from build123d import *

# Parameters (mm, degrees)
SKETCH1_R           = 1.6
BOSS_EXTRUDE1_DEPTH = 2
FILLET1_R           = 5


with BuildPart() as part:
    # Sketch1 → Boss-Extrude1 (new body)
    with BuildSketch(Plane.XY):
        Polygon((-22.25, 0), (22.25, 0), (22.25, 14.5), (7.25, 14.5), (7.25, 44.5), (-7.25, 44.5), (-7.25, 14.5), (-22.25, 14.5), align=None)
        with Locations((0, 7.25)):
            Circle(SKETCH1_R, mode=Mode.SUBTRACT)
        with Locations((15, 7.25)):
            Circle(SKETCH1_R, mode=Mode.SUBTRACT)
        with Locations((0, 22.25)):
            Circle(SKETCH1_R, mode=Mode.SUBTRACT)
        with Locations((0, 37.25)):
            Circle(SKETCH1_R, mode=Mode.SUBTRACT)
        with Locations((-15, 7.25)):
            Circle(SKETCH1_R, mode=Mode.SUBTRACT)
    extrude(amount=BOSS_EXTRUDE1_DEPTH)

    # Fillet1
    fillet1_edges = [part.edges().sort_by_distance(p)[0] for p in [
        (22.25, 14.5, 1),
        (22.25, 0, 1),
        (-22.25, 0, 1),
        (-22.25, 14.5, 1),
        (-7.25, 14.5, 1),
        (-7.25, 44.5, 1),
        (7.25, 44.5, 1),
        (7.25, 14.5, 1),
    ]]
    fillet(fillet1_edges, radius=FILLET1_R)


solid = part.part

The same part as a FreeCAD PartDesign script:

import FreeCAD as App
import Part
import Sketcher
from FreeCAD import Vector


def edges_at(feature, points):
    """Names of the edges that pass closest to the given points."""
    edges = feature.Shape.Edges
    near = lambda p: min(range(len(edges)), key=lambda i: edges[i].distToShape(Part.Vertex(*p))[0])
    return sorted({f"Edge{near(p) + 1}" for p in points})


def add_polygon(sketch, points):
    """Adds a closed chain of lines whose ends are joined by coincident constraints."""
    first, n = sketch.GeometryCount, len(points)
    for a, b in zip(points, points[1:] + points[:1]):
        sketch.addGeometry(Part.LineSegment(App.Vector(*a, 0), App.Vector(*b, 0)), False)
    for i in range(n):
        sketch.addConstraint(Sketcher.Constraint("Coincident", first + i, 2, first + (i + 1) % n, 1))

doc = App.newDocument("Part")
body = doc.addObject("PartDesign::Body", "Body")

# Sketch on XY plane
sketch1 = body.newObject("Sketcher::SketchObject", "Sketch")
sketch1.AttachmentSupport = (doc.getObject("XY_Plane"), [""])
sketch1.MapMode = "FlatFace"
add_polygon(sketch1, [(-22.2, 0), (22.2, 0), (22.2, 14.5), (7.2, 14.5), (7.2, 44.5), (-7.2, 44.5), (-7.2, 14.5), (-22.2, 14.5)])  # lines 0-7
sketch1.addGeometry(Part.Circle(Vector(-15, 7.2, 0), Vector(0, 0, 1), 1.6), False)  # 8
sketch1.addGeometry(Part.Circle(Vector(0, 7.2, 0), Vector(0, 0, 1), 1.6), False)  # 9
sketch1.addGeometry(Part.Circle(Vector(15, 7.2, 0), Vector(0, 0, 1), 1.6), False)  # 10
sketch1.addGeometry(Part.Circle(Vector(0, 22.2, 0), Vector(0, 0, 1), 1.6), False)  # 11
sketch1.addGeometry(Part.Circle(Vector(0, 37.2, 0), Vector(0, 0, 1), 1.6), False)  # 12
sketch1.addConstraint([
    Sketcher.Constraint("Horizontal", 0),
    Sketcher.Constraint("Vertical", 1),
    Sketcher.Constraint("Horizontal", 2),
    Sketcher.Constraint("Vertical", 3),
    Sketcher.Constraint("Horizontal", 4),
    Sketcher.Constraint("Vertical", 5),
    Sketcher.Constraint("Horizontal", 6),
    Sketcher.Constraint("Vertical", 7),
    Sketcher.Constraint("Equal", 8, 9),
    Sketcher.Constraint("Equal", 9, 10),
    Sketcher.Constraint("Equal", 10, 11),
    Sketcher.Constraint("Equal", 11, 12),
    Sketcher.Constraint("Symmetric", 0, 2, 7, 2, -1, 1),
    Sketcher.Constraint("Symmetric", 8, 3, 10, 3, -2),
    Sketcher.Constraint("Symmetric", 2, 2, 5, 2, -2),
    Sketcher.Constraint("PointOnObject", 9, 3, -2),
    Sketcher.Constraint("PointOnObject", 11, 3, -2),
    Sketcher.Constraint("PointOnObject", 12, 3, -2),
    Sketcher.Constraint("Horizontal", 8, 3, 9, 3),
    Sketcher.Constraint("Equal", 4, 1),
    Sketcher.Constraint("Diameter", 8, 3.2),
    Sketcher.Constraint("DistanceX", 2, 2, 2, 1, 15.0),
    Sketcher.Constraint("DistanceY", 3, 1, 3, 2, 30.0),
    Sketcher.Constraint("DistanceX", 0, 1, 0, 2, 44.5),
    Sketcher.Constraint("DistanceX", 8, 3, -1, 1, 15.0),
    Sketcher.Constraint("DistanceY", 9, 3, 11, 3, 15.0),
    Sketcher.Constraint("DistanceY", 11, 3, 12, 3, 15.0),
    Sketcher.Constraint("DistanceY", -1, 1, 8, 3, 7.25),
])
pad1 = body.newObject("PartDesign::Pad", "Pad")
pad1.Profile = sketch1
pad1.Length = 2
doc.recompute()

fillet = body.newObject("PartDesign::Fillet", "Fillet")
fillet.Base = (pad1, edges_at(pad1, [
    (22.25, 14.5, 1),
    (22.25, 0, 1),
    (-22.25, 0, 1),
    (-22.25, 14.5, 1),
    (-7.25, 14.5, 1),
    (-7.25, 44.5, 1),
    (7.25, 44.5, 1),
    (7.25, 14.5, 1),
]))
fillet.Radius = 5

doc.recompute()
